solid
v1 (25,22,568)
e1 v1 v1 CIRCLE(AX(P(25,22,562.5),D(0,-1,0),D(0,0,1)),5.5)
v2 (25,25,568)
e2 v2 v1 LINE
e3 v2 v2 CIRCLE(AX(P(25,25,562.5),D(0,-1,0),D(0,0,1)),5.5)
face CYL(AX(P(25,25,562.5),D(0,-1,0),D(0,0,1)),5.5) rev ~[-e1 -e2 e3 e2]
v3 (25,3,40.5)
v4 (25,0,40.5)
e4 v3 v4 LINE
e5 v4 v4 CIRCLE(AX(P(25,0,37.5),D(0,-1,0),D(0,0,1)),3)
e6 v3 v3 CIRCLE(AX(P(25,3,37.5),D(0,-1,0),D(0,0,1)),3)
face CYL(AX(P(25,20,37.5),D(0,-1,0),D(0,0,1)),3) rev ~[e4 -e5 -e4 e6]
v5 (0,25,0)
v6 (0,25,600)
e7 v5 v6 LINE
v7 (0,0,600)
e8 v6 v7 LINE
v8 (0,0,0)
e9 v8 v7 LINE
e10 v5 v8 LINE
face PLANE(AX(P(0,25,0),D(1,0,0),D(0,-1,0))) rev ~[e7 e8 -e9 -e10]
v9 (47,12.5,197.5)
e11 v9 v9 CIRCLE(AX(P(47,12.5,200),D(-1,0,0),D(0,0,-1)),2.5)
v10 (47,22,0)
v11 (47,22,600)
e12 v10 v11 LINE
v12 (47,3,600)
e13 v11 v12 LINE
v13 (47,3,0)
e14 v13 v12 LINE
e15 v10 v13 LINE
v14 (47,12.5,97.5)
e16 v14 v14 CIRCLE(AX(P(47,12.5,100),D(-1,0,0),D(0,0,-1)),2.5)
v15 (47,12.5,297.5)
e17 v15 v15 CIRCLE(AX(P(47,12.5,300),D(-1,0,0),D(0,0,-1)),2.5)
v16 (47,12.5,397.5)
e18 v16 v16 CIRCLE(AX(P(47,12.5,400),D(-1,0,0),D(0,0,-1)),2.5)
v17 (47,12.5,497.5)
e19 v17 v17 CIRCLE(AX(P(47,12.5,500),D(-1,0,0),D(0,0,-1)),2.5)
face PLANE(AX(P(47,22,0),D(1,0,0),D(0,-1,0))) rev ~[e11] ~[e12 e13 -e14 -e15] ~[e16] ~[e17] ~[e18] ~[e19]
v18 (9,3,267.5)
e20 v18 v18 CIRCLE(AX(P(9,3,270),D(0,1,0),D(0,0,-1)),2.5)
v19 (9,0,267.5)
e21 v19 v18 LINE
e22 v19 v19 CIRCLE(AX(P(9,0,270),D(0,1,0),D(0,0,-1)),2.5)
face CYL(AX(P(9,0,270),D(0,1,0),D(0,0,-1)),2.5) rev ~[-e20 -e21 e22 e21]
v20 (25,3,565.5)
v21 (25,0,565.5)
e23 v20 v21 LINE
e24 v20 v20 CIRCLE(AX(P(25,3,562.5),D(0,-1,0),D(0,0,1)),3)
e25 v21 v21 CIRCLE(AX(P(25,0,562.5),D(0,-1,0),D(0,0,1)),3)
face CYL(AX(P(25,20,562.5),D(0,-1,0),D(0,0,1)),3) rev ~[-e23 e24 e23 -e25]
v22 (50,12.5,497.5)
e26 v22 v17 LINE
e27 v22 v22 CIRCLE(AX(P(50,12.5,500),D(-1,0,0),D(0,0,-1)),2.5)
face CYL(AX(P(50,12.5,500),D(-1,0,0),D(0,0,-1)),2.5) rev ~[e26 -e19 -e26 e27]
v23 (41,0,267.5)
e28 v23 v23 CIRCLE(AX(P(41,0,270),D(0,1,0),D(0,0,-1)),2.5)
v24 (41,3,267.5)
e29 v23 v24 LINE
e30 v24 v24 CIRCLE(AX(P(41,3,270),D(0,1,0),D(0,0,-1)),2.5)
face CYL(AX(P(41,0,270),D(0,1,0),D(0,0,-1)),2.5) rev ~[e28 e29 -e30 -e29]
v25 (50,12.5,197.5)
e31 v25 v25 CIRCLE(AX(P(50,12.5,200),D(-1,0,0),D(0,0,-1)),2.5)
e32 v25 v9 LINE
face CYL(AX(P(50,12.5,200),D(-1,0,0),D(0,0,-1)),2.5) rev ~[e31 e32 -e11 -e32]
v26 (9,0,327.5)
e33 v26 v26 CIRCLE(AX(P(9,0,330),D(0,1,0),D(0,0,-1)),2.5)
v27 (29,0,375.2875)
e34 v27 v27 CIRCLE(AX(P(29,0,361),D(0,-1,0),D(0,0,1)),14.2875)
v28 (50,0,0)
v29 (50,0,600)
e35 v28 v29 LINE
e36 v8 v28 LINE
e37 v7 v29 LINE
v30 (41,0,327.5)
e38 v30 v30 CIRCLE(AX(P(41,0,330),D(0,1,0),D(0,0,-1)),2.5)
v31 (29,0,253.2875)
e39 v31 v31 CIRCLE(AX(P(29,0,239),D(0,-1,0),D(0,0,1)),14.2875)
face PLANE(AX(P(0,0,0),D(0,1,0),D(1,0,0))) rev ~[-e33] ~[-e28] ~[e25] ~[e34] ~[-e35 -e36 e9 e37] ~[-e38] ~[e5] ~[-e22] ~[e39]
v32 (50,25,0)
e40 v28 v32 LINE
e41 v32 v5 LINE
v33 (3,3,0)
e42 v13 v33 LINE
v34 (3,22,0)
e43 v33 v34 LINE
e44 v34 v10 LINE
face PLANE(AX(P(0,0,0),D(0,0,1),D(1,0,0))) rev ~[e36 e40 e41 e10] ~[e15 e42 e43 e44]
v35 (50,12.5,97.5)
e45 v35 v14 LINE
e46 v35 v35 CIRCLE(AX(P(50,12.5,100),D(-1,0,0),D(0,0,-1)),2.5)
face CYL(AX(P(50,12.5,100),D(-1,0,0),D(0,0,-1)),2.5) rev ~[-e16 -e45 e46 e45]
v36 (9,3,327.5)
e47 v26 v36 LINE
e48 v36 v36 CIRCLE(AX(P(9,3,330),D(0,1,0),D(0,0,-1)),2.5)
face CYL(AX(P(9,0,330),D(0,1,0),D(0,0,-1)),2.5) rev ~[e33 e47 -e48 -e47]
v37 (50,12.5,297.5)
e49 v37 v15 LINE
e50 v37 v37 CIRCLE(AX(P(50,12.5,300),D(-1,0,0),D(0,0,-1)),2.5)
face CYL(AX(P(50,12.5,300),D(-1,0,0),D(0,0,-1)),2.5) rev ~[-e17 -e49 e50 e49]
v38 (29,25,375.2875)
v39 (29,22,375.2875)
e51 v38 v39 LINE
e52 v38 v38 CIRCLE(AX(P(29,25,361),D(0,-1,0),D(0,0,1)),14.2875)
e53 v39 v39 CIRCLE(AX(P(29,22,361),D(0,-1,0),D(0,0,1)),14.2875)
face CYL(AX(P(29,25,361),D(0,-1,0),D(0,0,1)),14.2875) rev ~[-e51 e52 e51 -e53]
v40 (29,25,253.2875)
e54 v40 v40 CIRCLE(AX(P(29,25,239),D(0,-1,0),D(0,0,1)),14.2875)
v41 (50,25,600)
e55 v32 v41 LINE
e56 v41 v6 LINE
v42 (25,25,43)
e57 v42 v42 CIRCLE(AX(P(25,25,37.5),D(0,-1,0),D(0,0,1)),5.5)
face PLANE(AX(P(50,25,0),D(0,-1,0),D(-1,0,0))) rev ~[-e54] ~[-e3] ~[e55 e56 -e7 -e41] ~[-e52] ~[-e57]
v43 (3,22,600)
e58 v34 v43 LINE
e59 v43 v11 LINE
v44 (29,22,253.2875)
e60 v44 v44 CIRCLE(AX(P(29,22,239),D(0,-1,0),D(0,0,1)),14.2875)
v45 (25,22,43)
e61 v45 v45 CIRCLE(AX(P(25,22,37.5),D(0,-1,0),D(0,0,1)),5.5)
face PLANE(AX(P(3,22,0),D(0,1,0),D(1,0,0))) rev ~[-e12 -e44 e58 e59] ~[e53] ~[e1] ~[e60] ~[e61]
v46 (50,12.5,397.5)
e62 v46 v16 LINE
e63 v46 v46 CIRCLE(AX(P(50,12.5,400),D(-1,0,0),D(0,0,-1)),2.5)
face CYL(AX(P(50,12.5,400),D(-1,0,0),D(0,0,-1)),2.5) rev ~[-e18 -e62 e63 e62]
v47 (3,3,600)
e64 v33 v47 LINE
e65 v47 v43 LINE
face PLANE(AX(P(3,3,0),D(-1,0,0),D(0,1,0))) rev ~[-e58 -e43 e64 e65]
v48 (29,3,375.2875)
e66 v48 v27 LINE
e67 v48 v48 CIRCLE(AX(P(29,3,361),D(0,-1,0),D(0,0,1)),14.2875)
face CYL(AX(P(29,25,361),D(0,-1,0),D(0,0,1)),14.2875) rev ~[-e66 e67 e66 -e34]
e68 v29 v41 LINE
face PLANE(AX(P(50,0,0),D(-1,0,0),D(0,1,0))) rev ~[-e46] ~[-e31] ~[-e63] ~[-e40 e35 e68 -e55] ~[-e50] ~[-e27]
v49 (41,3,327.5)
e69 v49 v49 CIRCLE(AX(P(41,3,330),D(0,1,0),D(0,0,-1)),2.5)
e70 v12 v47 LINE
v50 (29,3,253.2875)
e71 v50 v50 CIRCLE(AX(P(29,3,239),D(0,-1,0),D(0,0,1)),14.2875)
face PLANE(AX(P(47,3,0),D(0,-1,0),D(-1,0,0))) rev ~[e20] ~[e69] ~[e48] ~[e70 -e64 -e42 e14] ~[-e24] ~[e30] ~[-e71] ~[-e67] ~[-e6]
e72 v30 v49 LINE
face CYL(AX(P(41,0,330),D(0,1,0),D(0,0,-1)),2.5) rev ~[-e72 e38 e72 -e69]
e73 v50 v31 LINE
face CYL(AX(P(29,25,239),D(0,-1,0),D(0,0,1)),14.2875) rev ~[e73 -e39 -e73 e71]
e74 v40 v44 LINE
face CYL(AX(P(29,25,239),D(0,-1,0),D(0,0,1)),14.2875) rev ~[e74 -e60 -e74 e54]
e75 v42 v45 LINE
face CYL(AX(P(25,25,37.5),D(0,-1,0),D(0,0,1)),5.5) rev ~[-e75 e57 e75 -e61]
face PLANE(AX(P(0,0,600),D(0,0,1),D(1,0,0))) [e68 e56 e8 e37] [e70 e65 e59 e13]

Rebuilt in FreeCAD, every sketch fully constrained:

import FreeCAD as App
import Part
import Sketcher

V = App.Vector


def add_polygon(sketch, points):
    """Adds a closed chain of lines whose ends are joined by coincident constraints."""
    first, n = sketch.GeometryCount, len(points)
    for a, b in zip(points, points[1:] + points[:1]):
        sketch.addGeometry(Part.LineSegment(App.Vector(*a, 0), App.Vector(*b, 0)), False)
    for i in range(n):
        sketch.addConstraint(Sketcher.Constraint("Coincident", first + i, 2, first + (i + 1) % n, 1))

doc = App.newDocument("Part")
body = doc.addObject("PartDesign::Body", "Body")

# Sketch on XY plane
sketch1 = doc.addObject("Sketcher::SketchObject", "Sketch")
body.addObject(sketch1)
sketch1.AttachmentSupport = (doc.XY_Plane, [""])
sketch1.MapMode = "FlatFace"
add_polygon(sketch1, [(0, 25), (0, 0), (50, 0), (50, 25)])  # lines 0-3
add_polygon(sketch1, [(47, 22), (47, 3), (3, 3), (3, 22)])  # lines 4-7
sketch1.addConstraint([
    Sketcher.Constraint("Vertical", 0),
    Sketcher.Constraint("Horizontal", 1),
    Sketcher.Constraint("Vertical", 2),
    Sketcher.Constraint("Horizontal", 3),
    Sketcher.Constraint("Vertical", 4),
    Sketcher.Constraint("Horizontal", 5),
    Sketcher.Constraint("Vertical", 6),
    Sketcher.Constraint("Horizontal", 7),
    Sketcher.Constraint("Coincident", 0, 2, -1, 1),
    Sketcher.Constraint("DistanceX", 1, 1, 1, 2, 50.0),
    Sketcher.Constraint("DistanceY", 0, 2, 0, 1, 25.0),
    Sketcher.Constraint("DistanceY", -1, 1, 4, 2, 3.0),
    Sketcher.Constraint("DistanceX", -1, 1, 5, 2, 3.0),
    Sketcher.Constraint("DistanceX", 4, 2, 1, 2, 3.0),
    Sketcher.Constraint("DistanceY", 6, 2, 3, 2, 3.0),
])
pad1 = doc.addObject("PartDesign::Pad", "Pad")
body.addObject(pad1)
pad1.Profile = sketch1
pad1.Length = 600

# Sketch on XZ plane
sketch2 = doc.addObject("Sketcher::SketchObject", "Sketch001")
body.addObject(sketch2)
sketch2.AttachmentSupport = (doc.XZ_Plane, [""])
sketch2.MapMode = "FlatFace"
sketch2.AttachmentOffset = App.Placement(V(0, 0, -25), App.Rotation())
sketch2.addGeometry([
    Part.Circle(V(25, 562.5, 0), V(0, 0, 1), 3),
    Part.Circle(V(25, 37.5, 0), V(0, 0, 1), 3),
], False)
sketch2.addConstraint([
    Sketcher.Constraint("Equal", 0, 1),
    Sketcher.Constraint("Vertical", 0, 3, 1, 3),
    Sketcher.Constraint("Diameter", 0, 6.0),
    Sketcher.Constraint("DistanceX", -1, 1, 0, 3, 25.0),
    Sketcher.Constraint("DistanceY", 1, 3, 0, 3, 525.0),
    Sketcher.Constraint("DistanceY", -1, 1, 0, 3, 562.5),
])
doc.recompute()
hole = doc.addObject("PartDesign::Hole", "Hole")
body.addObject(hole)
hole.Profile = sketch2
hole.ThreadType = "None"
hole.Diameter = 6
hole.DepthType = "ThroughAll"
hole.HoleCutType = "Counterbore"
hole.HoleCutDiameter = 11
hole.HoleCutDepth = 5
hole.Reversed = True

# Sketch on YZ plane
sketch3 = doc.addObject("Sketcher::SketchObject", "Sketch002")
body.addObject(sketch3)
sketch3.AttachmentSupport = (doc.YZ_Plane, [""])
sketch3.MapMode = "FlatFace"
sketch3.AttachmentOffset = App.Placement(V(0, 0, 50), App.Rotation())
sketch3.addGeometry([
    Part.Circle(V(12.5, 100, 0), V(0, 0, 1), 2.5),  # 0
    Part.Circle(V(12.5, 200, 0), V(0, 0, 1), 2.5),  # 1
    Part.Circle(V(12.5, 300, 0), V(0, 0, 1), 2.5),  # 2
    Part.Circle(V(12.5, 400, 0), V(0, 0, 1), 2.5),  # 3
    Part.Circle(V(12.5, 500, 0), V(0, 0, 1), 2.5),  # 4
], False)
sketch3.addConstraint([
    Sketcher.Constraint("Equal", 0, 1),
    Sketcher.Constraint("Equal", 1, 2),
    Sketcher.Constraint("Equal", 2, 3),
    Sketcher.Constraint("Equal", 3, 4),
    Sketcher.Constraint("Vertical", 0, 3, 1, 3),
    Sketcher.Constraint("Vertical", 1, 3, 2, 3),
    Sketcher.Constraint("Vertical", 2, 3, 3, 3),
    Sketcher.Constraint("Vertical", 3, 3, 4, 3),
    Sketcher.Constraint("Diameter", 0, 5.0),
    Sketcher.Constraint("DistanceY", -1, 1, 0, 3, 100.0),
    Sketcher.Constraint("DistanceY", -1, 1, 1, 3, 200.0),
    Sketcher.Constraint("DistanceY", -1, 1, 2, 3, 300.0),
    Sketcher.Constraint("DistanceY", -1, 1, 3, 3, 400.0),
    Sketcher.Constraint("DistanceY", -1, 1, 4, 3, 500.0),
    Sketcher.Constraint("DistanceX", -1, 1, 0, 3, 12.5),
])
doc.recompute()
hole2 = doc.addObject("PartDesign::Hole", "Hole001")
body.addObject(hole2)
hole2.Profile = sketch3
hole2.ThreadType = "None"
hole2.Diameter = 5
hole2.DepthType = "Dimension"
hole2.Depth = 8
hole2.DrillPoint = "Angled"
hole2.DrillPointAngle = 118

# Sketch on XZ plane
sketch4 = doc.addObject("Sketcher::SketchObject", "Sketch003")
body.addObject(sketch4)
sketch4.AttachmentSupport = (doc.XZ_Plane, [""])
sketch4.MapMode = "FlatFace"
sketch4.AttachmentOffset = App.Placement(V(0, 0, -25), App.Rotation())
sketch4.addGeometry([
    Part.Circle(V(29, 239, 0), V(0, 0, 1), 14.2875),
    Part.Circle(V(29, 361, 0), V(0, 0, 1), 14.2875),
], False)
sketch4.addConstraint([
    Sketcher.Constraint("Equal", 0, 1),
    Sketcher.Constraint("Vertical", 0, 3, 1, 3),
    Sketcher.Constraint("Diameter", 0, 28.575),
    Sketcher.Constraint("DistanceX", -1, 1, 0, 3, 29.0),
    Sketcher.Constraint("DistanceY", -1, 1, 0, 3, 239.0),
    Sketcher.Constraint("DistanceY", -1, 1, 1, 3, 361.0),
])
doc.recompute()
hole3 = doc.addObject("PartDesign::Hole", "Hole002")
body.addObject(hole3)
hole3.Profile = sketch4
hole3.ThreadType = "None"
hole3.Diameter = 28.575
hole3.DepthType = "ThroughAll"
hole3.Reversed = True

# Sketch on XZ plane
sketch5 = doc.addObject("Sketcher::SketchObject", "Sketch004")
body.addObject(sketch5)
sketch5.AttachmentSupport = (doc.XZ_Plane, [""])
sketch5.MapMode = "FlatFace"
sketch5.addGeometry([
    Part.Circle(V(41, 330, 0), V(0, 0, 1), 2.5),
    Part.Circle(V(9, 330, 0), V(0, 0, 1), 2.5),
    Part.Circle(V(9, 270, 0), V(0, 0, 1), 2.5),
    Part.Circle(V(41, 270, 0), V(0, 0, 1), 2.5),
], False)
sketch5.addConstraint([
    Sketcher.Constraint("Equal", 0, 1),
    Sketcher.Constraint("Equal", 1, 2),
    Sketcher.Constraint("Equal", 2, 3),
    Sketcher.Constraint("Horizontal", 0, 3, 1, 3),
    Sketcher.Constraint("Horizontal", 2, 3, 3, 3),
    Sketcher.Constraint("Vertical", 1, 3, 2, 3),
    Sketcher.Constraint("Vertical", 0, 3, 3, 3),
    Sketcher.Constraint("Diameter", 0, 5.0),
    Sketcher.Constraint("DistanceX", -1, 1, 0, 3, 41.0),
    Sketcher.Constraint("DistanceY", -1, 1, 0, 3, 330.0),
    Sketcher.Constraint("DistanceX", -1, 1, 1, 3, 9.0),
    Sketcher.Constraint("DistanceY", -1, 1, 2, 3, 270.0),
])
doc.recompute()
hole4 = doc.addObject("PartDesign::Hole", "Hole003")
body.addObject(hole4)
hole4.Profile = sketch5
hole4.ThreadType = "None"
hole4.Diameter = 5
hole4.DepthType = "Dimension"
hole4.Depth = 8
hole4.DrillPoint = "Flat"

doc.recompute()
